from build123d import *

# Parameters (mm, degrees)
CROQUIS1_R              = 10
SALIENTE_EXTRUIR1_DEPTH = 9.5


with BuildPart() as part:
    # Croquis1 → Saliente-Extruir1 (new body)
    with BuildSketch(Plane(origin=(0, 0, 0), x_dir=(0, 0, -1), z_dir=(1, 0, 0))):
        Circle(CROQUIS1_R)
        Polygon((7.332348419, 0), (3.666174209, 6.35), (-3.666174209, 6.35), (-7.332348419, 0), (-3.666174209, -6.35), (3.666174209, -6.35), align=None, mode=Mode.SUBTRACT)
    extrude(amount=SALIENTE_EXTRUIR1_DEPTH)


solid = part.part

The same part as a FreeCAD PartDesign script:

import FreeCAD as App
import Part
import Sketcher
Q = App.Units.Quantity

doc = App.newDocument("Part")
body = doc.addObject("PartDesign::Body", "Body")

sketch1 = doc.addObject("Sketcher::SketchObject", "Sketch")
body.addObject(sketch1)
sketch1.AttachmentSupport = (doc.YZ_Plane, [""])
sketch1.MapMode = "FlatFace"
sketch1.addGeometry(Part.Circle(App.Vector(0, 0, 0), App.Vector(0, 0, 1), 10), False)
sketch1.addGeometry(Part.LineSegment(App.Vector(6, -4, 0), App.Vector(0, -7, 0)), False)
sketch1.addGeometry(Part.LineSegment(App.Vector(0, -7, 0), App.Vector(-6, -4, 0)), False)
sketch1.addGeometry(Part.LineSegment(App.Vector(-6, -4, 0), App.Vector(-6, 4, 0)), False)
sketch1.addGeometry(Part.LineSegment(App.Vector(-6, 4, 0), App.Vector(0, 7, 0)), False)
sketch1.addGeometry(Part.LineSegment(App.Vector(0, 7, 0), App.Vector(6, 4, 0)), False)
sketch1.addGeometry(Part.LineSegment(App.Vector(6, 4, 0), App.Vector(6, -4, 0)), False)
sketch1.addConstraint(Sketcher.Constraint("Coincident", 1, 2, 2, 1))
sketch1.addConstraint(Sketcher.Constraint("Coincident", 2, 2, 3, 1))
sketch1.addConstraint(Sketcher.Constraint("Coincident", 3, 2, 4, 1))
sketch1.addConstraint(Sketcher.Constraint("Coincident", 4, 2, 5, 1))
sketch1.addConstraint(Sketcher.Constraint("Coincident", 5, 2, 6, 1))
sketch1.addConstraint(Sketcher.Constraint("Coincident", 6, 2, 1, 1))
sketch1.addConstraint(Sketcher.Constraint("Vertical", 3))
sketch1.addConstraint(Sketcher.Constraint("Vertical", 6))
sketch1.addConstraint(Sketcher.Constraint("Coincident", 0, 3, -1, 1))
sketch1.addConstraint(Sketcher.Constraint("Symmetric", 1, 2, 4, 2, -1, 1))
sketch1.addConstraint(Sketcher.Constraint("Symmetric", 2, 2, 5, 2, -1, 1))
sketch1.addConstraint(Sketcher.Constraint("PointOnObject", 1, 2, -2))
sketch1.addConstraint(Sketcher.Constraint("Parallel", 1, 4))
sketch1.addConstraint(Sketcher.Constraint("Horizontal", 3, 2, 5, 2))
sketch1.addConstraint(Sketcher.Constraint("Diameter", 0, Q("20 mm")))
sketch1.addConstraint(Sketcher.Constraint("Angle", 1, Q("-150 deg")))
sketch1.addConstraint(Sketcher.Constraint("DistanceX", 3, 2, 5, 2, Q("12.7 mm")))
sketch1.addConstraint(Sketcher.Constraint("DistanceY", 3, 1, 3, 2, Q("7.332348 mm")))
pad1 = doc.addObject("PartDesign::Pad", "Pad")
body.addObject(pad1)
pad1.Profile = sketch1
pad1.Length = 9.5

doc.recompute()
